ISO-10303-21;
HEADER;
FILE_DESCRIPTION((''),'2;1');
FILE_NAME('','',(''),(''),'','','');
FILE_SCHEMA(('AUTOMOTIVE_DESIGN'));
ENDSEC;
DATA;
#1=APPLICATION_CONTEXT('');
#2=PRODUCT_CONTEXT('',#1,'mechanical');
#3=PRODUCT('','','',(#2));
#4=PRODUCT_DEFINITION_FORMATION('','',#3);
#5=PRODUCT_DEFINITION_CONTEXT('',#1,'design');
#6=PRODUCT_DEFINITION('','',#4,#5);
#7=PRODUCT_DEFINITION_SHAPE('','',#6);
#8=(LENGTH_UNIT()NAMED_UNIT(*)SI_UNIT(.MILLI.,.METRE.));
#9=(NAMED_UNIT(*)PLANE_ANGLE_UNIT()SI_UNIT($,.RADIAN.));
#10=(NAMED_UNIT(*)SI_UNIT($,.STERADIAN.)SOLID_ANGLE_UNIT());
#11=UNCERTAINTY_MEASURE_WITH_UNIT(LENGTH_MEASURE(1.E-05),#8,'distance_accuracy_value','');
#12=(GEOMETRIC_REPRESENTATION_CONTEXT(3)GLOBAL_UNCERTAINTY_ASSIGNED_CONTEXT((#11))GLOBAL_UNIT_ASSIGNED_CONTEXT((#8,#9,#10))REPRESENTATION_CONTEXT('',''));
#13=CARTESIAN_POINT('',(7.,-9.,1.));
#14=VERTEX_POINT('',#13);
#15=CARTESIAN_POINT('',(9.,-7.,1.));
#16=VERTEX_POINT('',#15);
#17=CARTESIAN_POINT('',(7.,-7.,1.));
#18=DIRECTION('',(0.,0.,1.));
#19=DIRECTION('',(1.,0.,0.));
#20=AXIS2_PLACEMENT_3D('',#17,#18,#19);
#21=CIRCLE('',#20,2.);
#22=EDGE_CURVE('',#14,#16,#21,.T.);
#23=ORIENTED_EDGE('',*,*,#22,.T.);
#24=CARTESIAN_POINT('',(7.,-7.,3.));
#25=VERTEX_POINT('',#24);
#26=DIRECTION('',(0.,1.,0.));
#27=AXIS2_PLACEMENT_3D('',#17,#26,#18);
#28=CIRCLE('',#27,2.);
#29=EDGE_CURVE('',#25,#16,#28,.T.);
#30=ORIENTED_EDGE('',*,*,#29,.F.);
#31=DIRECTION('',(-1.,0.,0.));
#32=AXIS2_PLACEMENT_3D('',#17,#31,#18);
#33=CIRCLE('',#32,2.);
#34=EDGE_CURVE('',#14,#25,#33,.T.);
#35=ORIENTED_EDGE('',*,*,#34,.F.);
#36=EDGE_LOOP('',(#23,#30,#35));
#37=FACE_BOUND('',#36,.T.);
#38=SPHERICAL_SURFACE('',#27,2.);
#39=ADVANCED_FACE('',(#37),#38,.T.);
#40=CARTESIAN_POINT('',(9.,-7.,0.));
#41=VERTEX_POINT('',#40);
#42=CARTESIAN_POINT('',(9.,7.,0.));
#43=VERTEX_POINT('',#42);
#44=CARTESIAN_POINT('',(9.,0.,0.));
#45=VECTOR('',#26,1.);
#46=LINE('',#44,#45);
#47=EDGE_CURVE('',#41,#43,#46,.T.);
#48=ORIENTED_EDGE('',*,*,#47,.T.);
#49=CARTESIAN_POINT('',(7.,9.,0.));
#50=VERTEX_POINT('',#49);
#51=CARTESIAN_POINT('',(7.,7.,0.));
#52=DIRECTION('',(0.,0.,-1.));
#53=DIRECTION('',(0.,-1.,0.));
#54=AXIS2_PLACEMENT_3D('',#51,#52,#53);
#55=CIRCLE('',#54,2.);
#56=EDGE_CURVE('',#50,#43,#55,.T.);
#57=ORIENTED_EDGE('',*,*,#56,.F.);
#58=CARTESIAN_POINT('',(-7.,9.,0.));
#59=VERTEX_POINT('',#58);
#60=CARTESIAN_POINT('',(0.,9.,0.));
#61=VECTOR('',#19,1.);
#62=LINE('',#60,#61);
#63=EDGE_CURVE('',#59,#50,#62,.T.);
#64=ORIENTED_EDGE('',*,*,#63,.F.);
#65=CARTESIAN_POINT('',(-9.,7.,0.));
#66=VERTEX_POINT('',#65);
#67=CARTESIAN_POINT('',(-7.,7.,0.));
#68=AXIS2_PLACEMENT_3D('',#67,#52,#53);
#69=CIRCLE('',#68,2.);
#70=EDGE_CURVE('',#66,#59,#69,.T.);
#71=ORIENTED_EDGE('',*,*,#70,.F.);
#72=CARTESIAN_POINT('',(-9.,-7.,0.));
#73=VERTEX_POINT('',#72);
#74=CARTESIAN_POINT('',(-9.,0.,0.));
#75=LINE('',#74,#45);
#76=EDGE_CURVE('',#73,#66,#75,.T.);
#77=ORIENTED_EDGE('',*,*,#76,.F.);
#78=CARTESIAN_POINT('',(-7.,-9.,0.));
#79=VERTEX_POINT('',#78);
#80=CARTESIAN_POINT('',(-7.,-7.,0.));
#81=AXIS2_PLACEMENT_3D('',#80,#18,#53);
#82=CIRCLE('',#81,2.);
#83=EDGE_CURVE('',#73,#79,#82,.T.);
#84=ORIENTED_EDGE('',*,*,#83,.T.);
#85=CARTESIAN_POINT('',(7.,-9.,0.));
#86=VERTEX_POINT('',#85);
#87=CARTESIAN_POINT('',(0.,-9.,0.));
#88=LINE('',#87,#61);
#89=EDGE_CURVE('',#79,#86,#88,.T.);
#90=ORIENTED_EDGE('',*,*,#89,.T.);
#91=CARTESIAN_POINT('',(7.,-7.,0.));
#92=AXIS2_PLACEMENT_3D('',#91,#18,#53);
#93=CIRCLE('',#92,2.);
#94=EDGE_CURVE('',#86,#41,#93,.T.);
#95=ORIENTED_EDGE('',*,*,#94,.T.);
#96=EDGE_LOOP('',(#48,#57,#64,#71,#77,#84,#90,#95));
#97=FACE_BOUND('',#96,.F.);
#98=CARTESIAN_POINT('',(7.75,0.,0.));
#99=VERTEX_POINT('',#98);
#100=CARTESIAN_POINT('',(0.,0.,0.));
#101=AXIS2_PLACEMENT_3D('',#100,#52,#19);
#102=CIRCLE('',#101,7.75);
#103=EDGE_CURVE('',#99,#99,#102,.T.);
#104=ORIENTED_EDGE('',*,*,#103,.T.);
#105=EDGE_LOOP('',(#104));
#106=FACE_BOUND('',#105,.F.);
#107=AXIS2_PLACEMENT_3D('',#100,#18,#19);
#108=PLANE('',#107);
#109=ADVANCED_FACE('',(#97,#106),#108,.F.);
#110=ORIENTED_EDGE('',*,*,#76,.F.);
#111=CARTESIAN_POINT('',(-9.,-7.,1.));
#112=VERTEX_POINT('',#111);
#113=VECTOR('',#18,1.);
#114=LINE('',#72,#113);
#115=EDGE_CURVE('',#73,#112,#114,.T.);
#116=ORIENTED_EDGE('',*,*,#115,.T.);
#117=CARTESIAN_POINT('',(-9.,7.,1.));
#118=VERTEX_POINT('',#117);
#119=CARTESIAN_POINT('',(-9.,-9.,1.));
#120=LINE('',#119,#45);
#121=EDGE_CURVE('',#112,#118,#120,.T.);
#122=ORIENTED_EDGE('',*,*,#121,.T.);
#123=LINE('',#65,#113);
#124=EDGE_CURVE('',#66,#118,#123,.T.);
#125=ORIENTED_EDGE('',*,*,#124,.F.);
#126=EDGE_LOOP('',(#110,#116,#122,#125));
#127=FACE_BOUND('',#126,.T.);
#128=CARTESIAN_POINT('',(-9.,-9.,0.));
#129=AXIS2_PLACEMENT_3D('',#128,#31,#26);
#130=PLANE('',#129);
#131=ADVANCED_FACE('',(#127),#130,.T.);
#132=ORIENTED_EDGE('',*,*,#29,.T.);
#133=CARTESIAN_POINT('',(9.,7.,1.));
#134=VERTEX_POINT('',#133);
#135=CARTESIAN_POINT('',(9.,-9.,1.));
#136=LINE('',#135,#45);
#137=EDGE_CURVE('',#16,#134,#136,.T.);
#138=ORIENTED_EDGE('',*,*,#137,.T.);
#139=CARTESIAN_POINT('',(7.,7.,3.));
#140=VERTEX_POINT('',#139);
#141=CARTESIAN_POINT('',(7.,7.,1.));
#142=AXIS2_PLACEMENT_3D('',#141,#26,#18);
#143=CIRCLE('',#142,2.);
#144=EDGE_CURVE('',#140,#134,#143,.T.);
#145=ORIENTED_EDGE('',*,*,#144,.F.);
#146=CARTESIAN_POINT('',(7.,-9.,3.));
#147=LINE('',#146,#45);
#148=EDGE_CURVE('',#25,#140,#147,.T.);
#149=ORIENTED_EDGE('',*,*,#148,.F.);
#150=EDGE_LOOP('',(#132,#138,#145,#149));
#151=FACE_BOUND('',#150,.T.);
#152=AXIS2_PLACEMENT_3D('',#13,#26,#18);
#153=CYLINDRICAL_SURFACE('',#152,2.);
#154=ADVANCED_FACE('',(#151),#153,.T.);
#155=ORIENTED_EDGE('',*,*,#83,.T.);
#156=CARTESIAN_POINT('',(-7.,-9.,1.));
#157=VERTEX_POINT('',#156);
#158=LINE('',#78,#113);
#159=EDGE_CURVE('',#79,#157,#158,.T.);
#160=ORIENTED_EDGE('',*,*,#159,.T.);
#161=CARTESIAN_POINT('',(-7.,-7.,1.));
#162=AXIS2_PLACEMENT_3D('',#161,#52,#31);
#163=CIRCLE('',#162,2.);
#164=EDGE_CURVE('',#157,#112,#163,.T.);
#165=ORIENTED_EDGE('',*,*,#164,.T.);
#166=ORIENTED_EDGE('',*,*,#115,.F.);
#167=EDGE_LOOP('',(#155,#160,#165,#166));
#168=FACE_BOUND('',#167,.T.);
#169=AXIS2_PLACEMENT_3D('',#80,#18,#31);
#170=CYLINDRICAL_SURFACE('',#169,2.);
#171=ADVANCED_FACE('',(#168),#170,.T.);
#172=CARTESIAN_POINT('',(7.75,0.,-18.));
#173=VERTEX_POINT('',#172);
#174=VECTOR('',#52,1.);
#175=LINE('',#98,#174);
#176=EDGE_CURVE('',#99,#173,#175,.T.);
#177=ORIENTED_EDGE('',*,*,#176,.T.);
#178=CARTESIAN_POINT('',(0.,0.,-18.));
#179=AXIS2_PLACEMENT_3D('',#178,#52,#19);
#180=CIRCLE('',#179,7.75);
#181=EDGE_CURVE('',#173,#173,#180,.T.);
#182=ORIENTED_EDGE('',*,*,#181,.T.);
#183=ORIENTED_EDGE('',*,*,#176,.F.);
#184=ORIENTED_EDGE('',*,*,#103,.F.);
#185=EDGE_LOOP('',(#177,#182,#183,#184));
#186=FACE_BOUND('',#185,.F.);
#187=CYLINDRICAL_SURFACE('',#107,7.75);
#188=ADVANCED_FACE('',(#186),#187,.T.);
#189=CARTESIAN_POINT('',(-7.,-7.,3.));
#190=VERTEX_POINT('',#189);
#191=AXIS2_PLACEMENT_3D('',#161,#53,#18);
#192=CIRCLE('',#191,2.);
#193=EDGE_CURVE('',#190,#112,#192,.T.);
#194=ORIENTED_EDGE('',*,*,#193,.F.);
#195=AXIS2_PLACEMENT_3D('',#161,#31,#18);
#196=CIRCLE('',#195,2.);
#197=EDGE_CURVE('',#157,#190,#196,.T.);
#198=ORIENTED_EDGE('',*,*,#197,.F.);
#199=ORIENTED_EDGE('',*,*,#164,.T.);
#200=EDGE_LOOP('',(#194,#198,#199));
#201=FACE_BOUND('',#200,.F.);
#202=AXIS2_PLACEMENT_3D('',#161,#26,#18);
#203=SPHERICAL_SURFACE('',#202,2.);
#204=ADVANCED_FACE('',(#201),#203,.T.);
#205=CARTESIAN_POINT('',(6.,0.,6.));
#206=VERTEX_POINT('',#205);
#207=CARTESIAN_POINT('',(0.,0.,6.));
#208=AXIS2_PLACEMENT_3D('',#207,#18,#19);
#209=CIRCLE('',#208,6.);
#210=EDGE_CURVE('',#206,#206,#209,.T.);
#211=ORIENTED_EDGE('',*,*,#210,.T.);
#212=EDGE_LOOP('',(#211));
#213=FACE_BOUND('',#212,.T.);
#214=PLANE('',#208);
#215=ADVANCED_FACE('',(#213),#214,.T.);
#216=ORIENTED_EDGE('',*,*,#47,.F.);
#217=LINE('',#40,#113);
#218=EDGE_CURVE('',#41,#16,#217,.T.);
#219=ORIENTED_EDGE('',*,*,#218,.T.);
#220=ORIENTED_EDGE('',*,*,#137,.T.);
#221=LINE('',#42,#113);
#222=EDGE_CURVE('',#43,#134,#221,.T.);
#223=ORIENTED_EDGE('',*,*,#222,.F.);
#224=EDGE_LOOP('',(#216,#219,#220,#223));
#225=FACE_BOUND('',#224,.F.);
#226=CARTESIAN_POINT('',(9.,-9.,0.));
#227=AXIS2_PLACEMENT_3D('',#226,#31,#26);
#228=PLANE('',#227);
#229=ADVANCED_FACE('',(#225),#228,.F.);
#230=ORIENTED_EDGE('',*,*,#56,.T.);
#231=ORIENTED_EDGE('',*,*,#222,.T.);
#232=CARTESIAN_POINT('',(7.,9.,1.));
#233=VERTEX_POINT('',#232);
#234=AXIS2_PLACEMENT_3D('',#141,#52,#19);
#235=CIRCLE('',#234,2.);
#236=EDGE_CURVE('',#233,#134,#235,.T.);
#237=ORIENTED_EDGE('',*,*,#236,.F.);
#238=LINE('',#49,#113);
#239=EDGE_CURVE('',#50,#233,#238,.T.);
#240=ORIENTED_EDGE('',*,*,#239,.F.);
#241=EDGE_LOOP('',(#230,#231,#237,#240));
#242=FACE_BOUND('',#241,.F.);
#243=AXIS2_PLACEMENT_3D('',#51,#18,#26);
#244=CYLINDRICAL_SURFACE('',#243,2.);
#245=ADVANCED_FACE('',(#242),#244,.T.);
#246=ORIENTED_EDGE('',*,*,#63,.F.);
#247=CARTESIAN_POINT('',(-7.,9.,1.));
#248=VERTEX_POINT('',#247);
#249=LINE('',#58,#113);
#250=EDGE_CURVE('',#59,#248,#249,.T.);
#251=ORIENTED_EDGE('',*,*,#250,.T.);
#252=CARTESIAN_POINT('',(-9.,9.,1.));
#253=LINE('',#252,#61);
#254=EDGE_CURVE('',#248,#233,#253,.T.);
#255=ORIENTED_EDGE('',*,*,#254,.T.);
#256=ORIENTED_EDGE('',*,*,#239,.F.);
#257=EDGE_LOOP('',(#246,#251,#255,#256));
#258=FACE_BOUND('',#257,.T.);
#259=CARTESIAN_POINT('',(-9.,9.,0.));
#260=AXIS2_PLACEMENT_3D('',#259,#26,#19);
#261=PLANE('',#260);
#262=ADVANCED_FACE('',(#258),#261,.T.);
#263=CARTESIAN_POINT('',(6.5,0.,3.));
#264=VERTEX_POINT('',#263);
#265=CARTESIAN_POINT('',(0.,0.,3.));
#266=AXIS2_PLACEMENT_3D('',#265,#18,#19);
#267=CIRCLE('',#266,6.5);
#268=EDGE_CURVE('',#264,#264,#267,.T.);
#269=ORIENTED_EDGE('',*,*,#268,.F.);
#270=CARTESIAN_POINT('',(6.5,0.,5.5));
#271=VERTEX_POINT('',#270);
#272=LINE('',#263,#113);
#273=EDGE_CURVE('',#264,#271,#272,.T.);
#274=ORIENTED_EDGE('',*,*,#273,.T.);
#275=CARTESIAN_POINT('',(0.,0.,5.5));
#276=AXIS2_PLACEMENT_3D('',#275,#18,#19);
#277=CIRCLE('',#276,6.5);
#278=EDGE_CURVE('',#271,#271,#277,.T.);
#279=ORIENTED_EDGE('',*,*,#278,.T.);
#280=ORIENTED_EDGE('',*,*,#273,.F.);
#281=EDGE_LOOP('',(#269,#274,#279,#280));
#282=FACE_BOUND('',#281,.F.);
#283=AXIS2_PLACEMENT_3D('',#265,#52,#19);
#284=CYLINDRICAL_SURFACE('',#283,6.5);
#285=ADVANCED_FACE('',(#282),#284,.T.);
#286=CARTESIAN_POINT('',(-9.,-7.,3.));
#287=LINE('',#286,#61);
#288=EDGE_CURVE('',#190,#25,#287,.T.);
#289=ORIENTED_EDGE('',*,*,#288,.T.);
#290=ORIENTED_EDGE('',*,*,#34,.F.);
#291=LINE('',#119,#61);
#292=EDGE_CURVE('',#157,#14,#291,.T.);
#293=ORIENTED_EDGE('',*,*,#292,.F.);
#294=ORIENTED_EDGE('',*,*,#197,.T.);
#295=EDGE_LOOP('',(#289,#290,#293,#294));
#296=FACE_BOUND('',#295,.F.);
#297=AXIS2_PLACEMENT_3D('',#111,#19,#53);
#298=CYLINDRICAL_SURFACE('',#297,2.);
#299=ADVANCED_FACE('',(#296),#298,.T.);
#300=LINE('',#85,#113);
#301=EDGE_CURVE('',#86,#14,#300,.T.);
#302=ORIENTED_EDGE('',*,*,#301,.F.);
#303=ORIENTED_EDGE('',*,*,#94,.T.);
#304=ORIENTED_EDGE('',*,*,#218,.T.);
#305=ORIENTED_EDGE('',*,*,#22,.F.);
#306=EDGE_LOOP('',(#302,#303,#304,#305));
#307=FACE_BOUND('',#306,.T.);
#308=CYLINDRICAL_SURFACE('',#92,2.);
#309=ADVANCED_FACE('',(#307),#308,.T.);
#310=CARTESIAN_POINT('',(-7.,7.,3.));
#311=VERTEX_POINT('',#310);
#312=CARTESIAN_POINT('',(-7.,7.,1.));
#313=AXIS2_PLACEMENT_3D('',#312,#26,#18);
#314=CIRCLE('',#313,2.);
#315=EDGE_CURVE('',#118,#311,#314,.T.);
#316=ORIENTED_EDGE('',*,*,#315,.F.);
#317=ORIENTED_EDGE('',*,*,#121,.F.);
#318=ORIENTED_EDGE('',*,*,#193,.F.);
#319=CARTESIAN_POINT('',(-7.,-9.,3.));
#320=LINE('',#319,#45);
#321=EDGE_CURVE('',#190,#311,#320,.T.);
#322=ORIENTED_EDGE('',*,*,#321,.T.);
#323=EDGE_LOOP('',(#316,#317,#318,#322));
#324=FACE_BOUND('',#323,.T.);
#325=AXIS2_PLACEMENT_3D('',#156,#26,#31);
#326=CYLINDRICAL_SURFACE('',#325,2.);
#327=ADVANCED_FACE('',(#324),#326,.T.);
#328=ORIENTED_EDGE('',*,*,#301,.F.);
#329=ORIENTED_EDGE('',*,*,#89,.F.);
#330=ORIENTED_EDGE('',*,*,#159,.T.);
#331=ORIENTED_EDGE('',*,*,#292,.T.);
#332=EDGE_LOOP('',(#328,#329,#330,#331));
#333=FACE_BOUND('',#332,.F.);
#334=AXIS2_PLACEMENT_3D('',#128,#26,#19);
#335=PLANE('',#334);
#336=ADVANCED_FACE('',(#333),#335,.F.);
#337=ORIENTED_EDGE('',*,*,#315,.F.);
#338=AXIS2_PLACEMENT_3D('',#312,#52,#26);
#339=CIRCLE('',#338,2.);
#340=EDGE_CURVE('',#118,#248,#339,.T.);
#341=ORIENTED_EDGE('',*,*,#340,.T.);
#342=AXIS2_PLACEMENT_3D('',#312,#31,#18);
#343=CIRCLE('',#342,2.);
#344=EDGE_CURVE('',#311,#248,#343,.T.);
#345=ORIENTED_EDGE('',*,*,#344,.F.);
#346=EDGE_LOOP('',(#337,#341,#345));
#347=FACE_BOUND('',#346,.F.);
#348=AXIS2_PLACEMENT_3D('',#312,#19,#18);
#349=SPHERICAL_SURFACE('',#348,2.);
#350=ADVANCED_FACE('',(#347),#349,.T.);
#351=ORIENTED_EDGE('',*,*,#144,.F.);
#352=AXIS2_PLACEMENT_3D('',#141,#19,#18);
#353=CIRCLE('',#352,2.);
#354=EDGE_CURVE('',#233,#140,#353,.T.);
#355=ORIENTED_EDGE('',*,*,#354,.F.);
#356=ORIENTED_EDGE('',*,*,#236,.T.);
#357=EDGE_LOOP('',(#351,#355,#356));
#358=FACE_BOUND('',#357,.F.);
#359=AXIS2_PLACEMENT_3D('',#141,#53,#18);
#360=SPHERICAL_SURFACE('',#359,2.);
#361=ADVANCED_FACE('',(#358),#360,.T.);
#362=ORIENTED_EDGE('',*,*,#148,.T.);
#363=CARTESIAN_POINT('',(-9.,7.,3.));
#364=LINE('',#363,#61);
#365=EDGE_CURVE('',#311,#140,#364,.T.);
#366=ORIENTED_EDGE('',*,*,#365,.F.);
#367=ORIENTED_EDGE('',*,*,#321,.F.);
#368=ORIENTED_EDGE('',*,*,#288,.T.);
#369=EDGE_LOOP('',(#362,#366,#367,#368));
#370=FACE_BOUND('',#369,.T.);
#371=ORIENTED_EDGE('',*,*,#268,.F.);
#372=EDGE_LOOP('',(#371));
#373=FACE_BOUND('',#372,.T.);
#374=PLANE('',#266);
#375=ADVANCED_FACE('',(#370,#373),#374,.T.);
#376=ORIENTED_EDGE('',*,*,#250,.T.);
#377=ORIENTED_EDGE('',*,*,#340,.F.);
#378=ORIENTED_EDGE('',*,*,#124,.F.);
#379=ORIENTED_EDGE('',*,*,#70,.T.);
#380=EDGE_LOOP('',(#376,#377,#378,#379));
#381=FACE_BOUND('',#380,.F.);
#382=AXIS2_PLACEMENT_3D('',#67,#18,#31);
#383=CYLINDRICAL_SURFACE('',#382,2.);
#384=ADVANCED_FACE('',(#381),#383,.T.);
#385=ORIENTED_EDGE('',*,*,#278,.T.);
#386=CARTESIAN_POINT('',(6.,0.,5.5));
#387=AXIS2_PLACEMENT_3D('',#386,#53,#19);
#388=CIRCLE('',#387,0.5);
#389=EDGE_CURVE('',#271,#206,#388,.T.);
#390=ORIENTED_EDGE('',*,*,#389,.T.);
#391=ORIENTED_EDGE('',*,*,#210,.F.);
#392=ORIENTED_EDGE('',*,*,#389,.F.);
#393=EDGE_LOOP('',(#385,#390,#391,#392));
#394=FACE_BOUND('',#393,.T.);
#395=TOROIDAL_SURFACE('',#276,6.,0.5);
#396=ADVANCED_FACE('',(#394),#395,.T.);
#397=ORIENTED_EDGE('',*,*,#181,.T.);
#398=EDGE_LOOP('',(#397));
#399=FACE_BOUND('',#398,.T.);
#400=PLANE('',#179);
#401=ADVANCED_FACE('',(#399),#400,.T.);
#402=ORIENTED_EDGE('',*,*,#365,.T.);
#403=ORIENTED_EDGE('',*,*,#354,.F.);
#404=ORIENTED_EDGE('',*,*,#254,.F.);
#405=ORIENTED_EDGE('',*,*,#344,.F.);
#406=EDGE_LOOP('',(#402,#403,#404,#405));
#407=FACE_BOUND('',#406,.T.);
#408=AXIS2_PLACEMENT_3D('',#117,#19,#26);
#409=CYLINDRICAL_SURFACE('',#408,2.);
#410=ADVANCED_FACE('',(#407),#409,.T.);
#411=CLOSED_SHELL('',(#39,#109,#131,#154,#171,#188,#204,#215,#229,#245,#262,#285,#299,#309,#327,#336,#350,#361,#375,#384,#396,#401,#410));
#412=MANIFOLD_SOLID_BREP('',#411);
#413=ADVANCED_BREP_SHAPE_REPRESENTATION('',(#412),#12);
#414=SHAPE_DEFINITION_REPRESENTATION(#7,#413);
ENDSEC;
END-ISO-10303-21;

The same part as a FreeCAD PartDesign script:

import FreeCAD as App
import Part
import Sketcher

V = App.Vector
Q = App.Units.Quantity


def edges_at(feature, points):
    """Names of the edges that pass closest to the given points."""
    edges = feature.Shape.Edges
    near = lambda p: min(range(len(edges)), key=lambda i: edges[i].distToShape(Part.Vertex(*p))[0])
    return sorted({f"Edge{near(p) + 1}" for p in points})


def add_polygon(sketch, points):
    """Adds a closed chain of lines whose ends are joined by coincident constraints."""
    first, n = sketch.GeometryCount, len(points)
    for a, b in zip(points, points[1:] + points[:1]):
        sketch.addGeometry(Part.LineSegment(App.Vector(*a, 0), App.Vector(*b, 0)), False)
    for i in range(n):
        sketch.addConstraint(Sketcher.Constraint("Coincident", first + i, 2, first + (i + 1) % n, 1))

doc = App.newDocument("Part")
body = doc.addObject("PartDesign::Body", "Body")

# Sketch on XY plane
sketch1 = doc.addObject("Sketcher::SketchObject", "Sketch")
body.addObject(sketch1)
sketch1.AttachmentSupport = (doc.XY_Plane, [""])
sketch1.MapMode = "FlatFace"
add_polygon(sketch1, [(-9, 9), (-9, -9), (9, -9), (9, 9)])  # lines 0-3
sketch1.addConstraint([
    Sketcher.Constraint("Vertical", 0),
    Sketcher.Constraint("Horizontal", 1),
    Sketcher.Constraint("Vertical", 2),
    Sketcher.Constraint("Horizontal", 3),
    Sketcher.Constraint("Symmetric", 0, 2, 2, 2, -1, 1),
    Sketcher.Constraint("Equal", 3, 0),
    Sketcher.Constraint("DistanceX", 1, 1, 1, 2, Q("18 mm")),
])
pad1 = doc.addObject("PartDesign::Pad", "Pad")
body.addObject(pad1)
pad1.Profile = sketch1
pad1.Length = 3

# Sketch on XY plane
sketch2 = doc.addObject("Sketcher::SketchObject", "Sketch001")
body.addObject(sketch2)
sketch2.AttachmentSupport = (doc.XY_Plane, [""])
sketch2.MapMode = "FlatFace"
sketch2.AttachmentOffset = App.Placement(V(0, 0, 3), App.Rotation())
sketch2.addGeometry(Part.Circle(V(0, 0, 0), V(0, 0, 1), 6), False)
sketch2.addConstraint([
    Sketcher.Constraint("Coincident", 0, 3, -1, 1),
    Sketcher.Constraint("Diameter", 0, Q("13 mm")),
])
pad2 = doc.addObject("PartDesign::Pad", "Pad001")
body.addObject(pad2)
pad2.Profile = sketch2
pad2.Length = 3
doc.recompute()

fillet = doc.addObject("PartDesign::Fillet", "Fillet")
body.addObject(fillet)
fillet.Base = (pad2, edges_at(pad2, [
    (9, 0, 3),
    (0, 9, 3),
    (-9, 0, 3),
    (0, -9, 3),
    (-9, -9, 1.5),
    (-9, 9, 1.5),
    (9, -9, 1.5),
    (9, 9, 1.5),
]))
fillet.Radius = 2
doc.recompute()

fillet2 = doc.addObject("PartDesign::Fillet", "Fillet001")
body.addObject(fillet2)
fillet2.Base = (fillet, edges_at(fillet, [(-6.5, 0, 6)]))
fillet2.Radius = 0.5

# Sketch on XY plane
sketch3 = doc.addObject("Sketcher::SketchObject", "Sketch002")
body.addObject(sketch3)
sketch3.AttachmentSupport = (doc.XY_Plane, [""])
sketch3.MapMode = "FlatFace"
sketch3.addGeometry(Part.Circle(V(0, 0, 0), V(0, 0, 1), 8), False)
sketch3.addConstraint([
    Sketcher.Constraint("Coincident", 0, 3, -1, 1),
    Sketcher.Constraint("Diameter", 0, Q("15.5 mm")),
])
pad3 = doc.addObject("PartDesign::Pad", "Pad002")
body.addObject(pad3)
pad3.Profile = sketch3
pad3.Length = 18
pad3.Reversed = True

doc.recompute()
